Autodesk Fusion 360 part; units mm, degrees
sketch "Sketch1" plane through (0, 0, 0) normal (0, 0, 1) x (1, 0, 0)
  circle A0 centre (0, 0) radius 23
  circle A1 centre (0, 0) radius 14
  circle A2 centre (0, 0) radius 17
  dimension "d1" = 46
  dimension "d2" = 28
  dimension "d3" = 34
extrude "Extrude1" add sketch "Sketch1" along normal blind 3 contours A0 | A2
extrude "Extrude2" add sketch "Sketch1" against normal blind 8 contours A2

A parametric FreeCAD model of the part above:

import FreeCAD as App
import Part
import Sketcher
Q = App.Units.Quantity

doc = App.newDocument("Part")
params = doc.addObject("Spreadsheet::Sheet", "Params")
for row, (alias, value) in enumerate([
    ("sketch1_diameter", "46 mm"),
    ("sketch1_diameter2", "28 mm"),
    ("pad1_length", "3 mm"),
    ("sketch2_diameter", "34 mm"),
    ("sketch2_diameter2", "28 mm"),
    ("pad2_length", "8 mm"),
], start=1):
    params.set(f"A{row}", alias)
    params.set(f"B{row}", "=" + value)
    params.setAlias(f"B{row}", alias)

body = doc.addObject("PartDesign::Body", "Body")

# Sketch on XY plane
sketch1 = doc.addObject("Sketcher::SketchObject", "Sketch")
body.addObject(sketch1)
sketch1.AttachmentSupport = (doc.XY_Plane, [""])
sketch1.MapMode = "FlatFace"
sketch1.addGeometry([
    Part.Circle(App.Vector(0, 0, 0), App.Vector(0, 0, 1), 23),
    Part.Circle(App.Vector(0, 0, 0), App.Vector(0, 0, 1), 14),
], False)
sketch1.addConstraint([
    Sketcher.Constraint("Coincident", 0, 3, -1, 1),
    Sketcher.Constraint("Coincident", 1, 3, -1, 1),
    Sketcher.Constraint("Diameter", 0, Q("46 mm")),
    Sketcher.Constraint("Diameter", 1, Q("28 mm")),
])
sketch1.setExpression("Constraints[2]", "Params.sketch1_diameter")
sketch1.setExpression("Constraints[3]", "Params.sketch1_diameter2")
pad1 = doc.addObject("PartDesign::Pad", "Pad")
body.addObject(pad1)
pad1.Profile = sketch1
pad1.setExpression("Length", "Params.pad1_length")

# Sketch on XY plane
sketch2 = doc.addObject("Sketcher::SketchObject", "Sketch001")
body.addObject(sketch2)
sketch2.AttachmentSupport = (doc.XY_Plane, [""])
sketch2.MapMode = "FlatFace"
sketch2.addGeometry([
    Part.Circle(App.Vector(0, 0, 0), App.Vector(0, 0, 1), 17),
    Part.Circle(App.Vector(0, 0, 0), App.Vector(0, 0, 1), 14),
], False)
sketch2.addConstraint([
    Sketcher.Constraint("Coincident", 0, 3, -1, 1),
    Sketcher.Constraint("Coincident", 1, 3, -1, 1),
    Sketcher.Constraint("Diameter", 0, Q("34 mm")),
    Sketcher.Constraint("Diameter", 1, Q("28 mm")),
])
sketch2.setExpression("Constraints[2]", "Params.sketch2_diameter")
sketch2.setExpression("Constraints[3]", "Params.sketch2_diameter2")
pad2 = doc.addObject("PartDesign::Pad", "Pad001")
body.addObject(pad2)
pad2.Profile = sketch2
pad2.setExpression("Length", "Params.pad2_length")
pad2.Reversed = True

doc.recompute()
